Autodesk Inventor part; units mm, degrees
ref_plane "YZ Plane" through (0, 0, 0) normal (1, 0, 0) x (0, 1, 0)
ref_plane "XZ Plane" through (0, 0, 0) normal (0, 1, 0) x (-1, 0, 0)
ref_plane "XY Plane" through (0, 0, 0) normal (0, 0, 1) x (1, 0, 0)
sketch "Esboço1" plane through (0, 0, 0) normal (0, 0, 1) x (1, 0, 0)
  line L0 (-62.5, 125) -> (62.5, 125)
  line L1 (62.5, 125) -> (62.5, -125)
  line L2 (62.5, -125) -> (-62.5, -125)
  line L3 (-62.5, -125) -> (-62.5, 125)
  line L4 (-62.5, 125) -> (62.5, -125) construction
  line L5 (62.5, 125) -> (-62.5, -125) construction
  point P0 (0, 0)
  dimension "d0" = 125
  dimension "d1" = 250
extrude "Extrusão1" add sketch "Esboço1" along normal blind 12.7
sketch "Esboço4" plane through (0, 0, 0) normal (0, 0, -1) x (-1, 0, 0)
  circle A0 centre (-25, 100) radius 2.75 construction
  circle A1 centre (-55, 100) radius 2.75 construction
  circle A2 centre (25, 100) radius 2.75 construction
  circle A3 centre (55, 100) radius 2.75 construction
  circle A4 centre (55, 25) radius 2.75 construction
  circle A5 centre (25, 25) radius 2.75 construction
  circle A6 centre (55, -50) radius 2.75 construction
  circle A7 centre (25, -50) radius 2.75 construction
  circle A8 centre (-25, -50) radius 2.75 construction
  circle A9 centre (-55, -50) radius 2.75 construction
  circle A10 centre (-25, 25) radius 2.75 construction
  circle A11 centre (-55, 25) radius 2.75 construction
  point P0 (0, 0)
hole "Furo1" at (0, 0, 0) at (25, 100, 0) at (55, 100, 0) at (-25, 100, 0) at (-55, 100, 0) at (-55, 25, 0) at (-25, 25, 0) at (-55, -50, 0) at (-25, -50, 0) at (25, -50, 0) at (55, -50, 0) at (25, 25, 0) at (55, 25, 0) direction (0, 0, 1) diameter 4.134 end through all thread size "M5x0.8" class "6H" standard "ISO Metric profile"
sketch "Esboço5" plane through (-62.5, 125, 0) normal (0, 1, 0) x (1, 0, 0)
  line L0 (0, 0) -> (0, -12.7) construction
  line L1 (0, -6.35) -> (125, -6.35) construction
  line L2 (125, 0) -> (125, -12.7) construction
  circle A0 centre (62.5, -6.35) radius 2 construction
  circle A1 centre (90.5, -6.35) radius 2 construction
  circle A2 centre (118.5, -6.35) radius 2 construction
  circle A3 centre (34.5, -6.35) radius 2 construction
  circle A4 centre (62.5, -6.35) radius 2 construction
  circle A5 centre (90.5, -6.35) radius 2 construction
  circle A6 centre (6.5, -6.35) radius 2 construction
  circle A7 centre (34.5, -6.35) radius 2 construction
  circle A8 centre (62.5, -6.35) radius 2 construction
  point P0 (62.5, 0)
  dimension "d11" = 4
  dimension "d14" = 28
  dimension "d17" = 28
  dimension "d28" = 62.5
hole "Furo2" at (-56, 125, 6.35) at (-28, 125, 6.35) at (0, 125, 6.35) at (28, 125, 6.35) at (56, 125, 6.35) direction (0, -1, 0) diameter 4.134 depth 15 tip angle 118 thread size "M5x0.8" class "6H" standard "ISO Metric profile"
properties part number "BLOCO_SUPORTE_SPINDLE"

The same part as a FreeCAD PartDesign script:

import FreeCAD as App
import Part
import Sketcher

V = App.Vector


def add_polygon(sketch, points):
    """Adds a closed chain of lines whose ends are joined by coincident constraints."""
    first, n = sketch.GeometryCount, len(points)
    for a, b in zip(points, points[1:] + points[:1]):
        sketch.addGeometry(Part.LineSegment(App.Vector(*a, 0), App.Vector(*b, 0)), False)
    for i in range(n):
        sketch.addConstraint(Sketcher.Constraint("Coincident", first + i, 2, first + (i + 1) % n, 1))

doc = App.newDocument("Part")
body = doc.addObject("PartDesign::Body", "Body")

# Sketch on XY plane
sketch1 = body.newObject("Sketcher::SketchObject", "Sketch")
sketch1.AttachmentSupport = (doc.getObject("XY_Plane"), [""])
sketch1.MapMode = "FlatFace"
add_polygon(sketch1, [(62, 125), (-62, 125), (-62, -125), (62, -125)])  # lines 0-3
sketch1.addConstraint(Sketcher.Constraint("Horizontal", 0))
sketch1.addConstraint(Sketcher.Constraint("Vertical", 1))
sketch1.addConstraint(Sketcher.Constraint("Horizontal", 2))
sketch1.addConstraint(Sketcher.Constraint("Vertical", 3))
sketch1.addConstraint(Sketcher.Constraint("Symmetric", 0, 2, 2, 2, -1, 1))
sketch1.addConstraint(Sketcher.Constraint("DistanceX", 0, 2, 0, 1, 125.0))
sketch1.addConstraint(Sketcher.Constraint("DistanceY", 1, 2, 1, 1, 250.0))
pad1 = body.newObject("PartDesign::Pad", "Pad")
pad1.Profile = sketch1
pad1.Length = 12.7

# Sketch on XY plane
sketch2 = body.newObject("Sketcher::SketchObject", "Sketch001")
sketch2.AttachmentSupport = (doc.getObject("XY_Plane"), [""])
sketch2.MapMode = "FlatFace"
sketch2.addGeometry(Part.Circle(V(0, 0, 0), V(0, 0, 1), 2.1), False)
sketch2.addGeometry(Part.Circle(V(25, 100, 0), V(0, 0, 1), 2.1), False)
sketch2.addGeometry(Part.Circle(V(55, 100, 0), V(0, 0, 1), 2.1), False)
sketch2.addGeometry(Part.Circle(V(-25, 100, 0), V(0, 0, 1), 2.1), False)
sketch2.addGeometry(Part.Circle(V(-55, 100, 0), V(0, 0, 1), 2.1), False)
sketch2.addGeometry(Part.Circle(V(-55, 25, 0), V(0, 0, 1), 2.1), False)
sketch2.addGeometry(Part.Circle(V(-25, 25, 0), V(0, 0, 1), 2.1), False)
sketch2.addGeometry(Part.Circle(V(-55, -50, 0), V(0, 0, 1), 2.1), False)
sketch2.addGeometry(Part.Circle(V(-25, -50, 0), V(0, 0, 1), 2.1), False)
sketch2.addGeometry(Part.Circle(V(25, -50, 0), V(0, 0, 1), 2.1), False)
sketch2.addGeometry(Part.Circle(V(55, -50, 0), V(0, 0, 1), 2.1), False)
sketch2.addGeometry(Part.Circle(V(25, 25, 0), V(0, 0, 1), 2.1), False)
sketch2.addGeometry(Part.Circle(V(55, 25, 0), V(0, 0, 1), 2.1), False)
sketch2.addConstraint(Sketcher.Constraint("Coincident", 0, 3, -1, 1))
sketch2.addConstraint(Sketcher.Constraint("Equal", 0, 1))
sketch2.addConstraint(Sketcher.Constraint("Equal", 1, 2))
sketch2.addConstraint(Sketcher.Constraint("Equal", 2, 3))
sketch2.addConstraint(Sketcher.Constraint("Equal", 3, 4))
sketch2.addConstraint(Sketcher.Constraint("Equal", 4, 5))
sketch2.addConstraint(Sketcher.Constraint("Equal", 5, 6))
sketch2.addConstraint(Sketcher.Constraint("Equal", 6, 7))
sketch2.addConstraint(Sketcher.Constraint("Equal", 7, 8))
sketch2.addConstraint(Sketcher.Constraint("Equal", 8, 9))
sketch2.addConstraint(Sketcher.Constraint("Equal", 9, 10))
sketch2.addConstraint(Sketcher.Constraint("Equal", 10, 11))
sketch2.addConstraint(Sketcher.Constraint("Equal", 11, 12))
sketch2.addConstraint(Sketcher.Constraint("Symmetric", 1, 3, 3, 3, -2))
sketch2.addConstraint(Sketcher.Constraint("Symmetric", 2, 3, 4, 3, -2))
sketch2.addConstraint(Sketcher.Constraint("Symmetric", 8, 3, 9, 3, -2))
sketch2.addConstraint(Sketcher.Constraint("Symmetric", 7, 3, 10, 3, -2))
sketch2.addConstraint(Sketcher.Constraint("Symmetric", 6, 3, 11, 3, -2))
sketch2.addConstraint(Sketcher.Constraint("Symmetric", 5, 3, 12, 3, -2))
sketch2.addConstraint(Sketcher.Constraint("Horizontal", 1, 3, 2, 3))
sketch2.addConstraint(Sketcher.Constraint("Horizontal", 5, 3, 6, 3))
sketch2.addConstraint(Sketcher.Constraint("Horizontal", 7, 3, 8, 3))
sketch2.addConstraint(Sketcher.Constraint("Vertical", 4, 3, 5, 3))
sketch2.addConstraint(Sketcher.Constraint("Vertical", 3, 3, 6, 3))
sketch2.addConstraint(Sketcher.Constraint("Vertical", 5, 3, 7, 3))
sketch2.addConstraint(Sketcher.Constraint("Vertical", 6, 3, 8, 3))
sketch2.addConstraint(Sketcher.Constraint("Diameter", 0, 4.134))
sketch2.addConstraint(Sketcher.Constraint("DistanceX", -1, 1, 1, 3, 25.0))
sketch2.addConstraint(Sketcher.Constraint("DistanceY", -1, 1, 1, 3, 100.0))
sketch2.addConstraint(Sketcher.Constraint("DistanceX", -1, 1, 2, 3, 55.0))
sketch2.addConstraint(Sketcher.Constraint("DistanceY", -1, 1, 5, 3, 25.0))
sketch2.addConstraint(Sketcher.Constraint("DistanceY", 7, 3, -1, 1, 50.0))
doc.recompute()
hole = body.newObject("PartDesign::Hole", "Hole")
hole.Profile = sketch2
hole.ThreadType = "None"
hole.Diameter = 4.134
hole.DepthType = "ThroughAll"
hole.Reversed = True

# Sketch on XZ plane
sketch3 = body.newObject("Sketcher::SketchObject", "Sketch002")
sketch3.AttachmentSupport = (doc.getObject("XZ_Plane"), [""])
sketch3.MapMode = "FlatFace"
sketch3.AttachmentOffset = App.Placement(V(0, 0, -125), App.Rotation())
sketch3.addGeometry(Part.Circle(V(-56, 6.3, 0), V(0, 0, 1), 2.1), False)
sketch3.addGeometry(Part.Circle(V(-28, 6.3, 0), V(0, 0, 1), 2.1), False)
sketch3.addGeometry(Part.Circle(V(0, 6.3, 0), V(0, 0, 1), 2.1), False)
sketch3.addGeometry(Part.Circle(V(28, 6.3, 0), V(0, 0, 1), 2.1), False)
sketch3.addGeometry(Part.Circle(V(56, 6.3, 0), V(0, 0, 1), 2.1), False)
sketch3.addConstraint(Sketcher.Constraint("Equal", 0, 1))
sketch3.addConstraint(Sketcher.Constraint("Equal", 1, 2))
sketch3.addConstraint(Sketcher.Constraint("Equal", 2, 3))
sketch3.addConstraint(Sketcher.Constraint("Equal", 3, 4))
sketch3.addConstraint(Sketcher.Constraint("Symmetric", 1, 3, 3, 3, -2))
sketch3.addConstraint(Sketcher.Constraint("Symmetric", 0, 3, 4, 3, -2))
sketch3.addConstraint(Sketcher.Constraint("PointOnObject", 2, 3, -2))
sketch3.addConstraint(Sketcher.Constraint("Horizontal", 0, 3, 1, 3))
sketch3.addConstraint(Sketcher.Constraint("Horizontal", 1, 3, 2, 3))
sketch3.addConstraint(Sketcher.Constraint("Diameter", 0, 4.134))
sketch3.addConstraint(Sketcher.Constraint("DistanceX", 0, 3, -1, 1, 56.0))
sketch3.addConstraint(Sketcher.Constraint("DistanceX", 1, 3, -1, 1, 28.0))
sketch3.addConstraint(Sketcher.Constraint("DistanceY", -1, 1, 0, 3, 6.35))
doc.recompute()
hole2 = body.newObject("PartDesign::Hole", "Hole001")
hole2.Profile = sketch3
hole2.ThreadType = "None"
hole2.Diameter = 4.134
hole2.DepthType = "Dimension"
hole2.Depth = 15
hole2.DrillPoint = "Angled"
hole2.DrillPointAngle = 118
hole2.Reversed = True

doc.recompute()
